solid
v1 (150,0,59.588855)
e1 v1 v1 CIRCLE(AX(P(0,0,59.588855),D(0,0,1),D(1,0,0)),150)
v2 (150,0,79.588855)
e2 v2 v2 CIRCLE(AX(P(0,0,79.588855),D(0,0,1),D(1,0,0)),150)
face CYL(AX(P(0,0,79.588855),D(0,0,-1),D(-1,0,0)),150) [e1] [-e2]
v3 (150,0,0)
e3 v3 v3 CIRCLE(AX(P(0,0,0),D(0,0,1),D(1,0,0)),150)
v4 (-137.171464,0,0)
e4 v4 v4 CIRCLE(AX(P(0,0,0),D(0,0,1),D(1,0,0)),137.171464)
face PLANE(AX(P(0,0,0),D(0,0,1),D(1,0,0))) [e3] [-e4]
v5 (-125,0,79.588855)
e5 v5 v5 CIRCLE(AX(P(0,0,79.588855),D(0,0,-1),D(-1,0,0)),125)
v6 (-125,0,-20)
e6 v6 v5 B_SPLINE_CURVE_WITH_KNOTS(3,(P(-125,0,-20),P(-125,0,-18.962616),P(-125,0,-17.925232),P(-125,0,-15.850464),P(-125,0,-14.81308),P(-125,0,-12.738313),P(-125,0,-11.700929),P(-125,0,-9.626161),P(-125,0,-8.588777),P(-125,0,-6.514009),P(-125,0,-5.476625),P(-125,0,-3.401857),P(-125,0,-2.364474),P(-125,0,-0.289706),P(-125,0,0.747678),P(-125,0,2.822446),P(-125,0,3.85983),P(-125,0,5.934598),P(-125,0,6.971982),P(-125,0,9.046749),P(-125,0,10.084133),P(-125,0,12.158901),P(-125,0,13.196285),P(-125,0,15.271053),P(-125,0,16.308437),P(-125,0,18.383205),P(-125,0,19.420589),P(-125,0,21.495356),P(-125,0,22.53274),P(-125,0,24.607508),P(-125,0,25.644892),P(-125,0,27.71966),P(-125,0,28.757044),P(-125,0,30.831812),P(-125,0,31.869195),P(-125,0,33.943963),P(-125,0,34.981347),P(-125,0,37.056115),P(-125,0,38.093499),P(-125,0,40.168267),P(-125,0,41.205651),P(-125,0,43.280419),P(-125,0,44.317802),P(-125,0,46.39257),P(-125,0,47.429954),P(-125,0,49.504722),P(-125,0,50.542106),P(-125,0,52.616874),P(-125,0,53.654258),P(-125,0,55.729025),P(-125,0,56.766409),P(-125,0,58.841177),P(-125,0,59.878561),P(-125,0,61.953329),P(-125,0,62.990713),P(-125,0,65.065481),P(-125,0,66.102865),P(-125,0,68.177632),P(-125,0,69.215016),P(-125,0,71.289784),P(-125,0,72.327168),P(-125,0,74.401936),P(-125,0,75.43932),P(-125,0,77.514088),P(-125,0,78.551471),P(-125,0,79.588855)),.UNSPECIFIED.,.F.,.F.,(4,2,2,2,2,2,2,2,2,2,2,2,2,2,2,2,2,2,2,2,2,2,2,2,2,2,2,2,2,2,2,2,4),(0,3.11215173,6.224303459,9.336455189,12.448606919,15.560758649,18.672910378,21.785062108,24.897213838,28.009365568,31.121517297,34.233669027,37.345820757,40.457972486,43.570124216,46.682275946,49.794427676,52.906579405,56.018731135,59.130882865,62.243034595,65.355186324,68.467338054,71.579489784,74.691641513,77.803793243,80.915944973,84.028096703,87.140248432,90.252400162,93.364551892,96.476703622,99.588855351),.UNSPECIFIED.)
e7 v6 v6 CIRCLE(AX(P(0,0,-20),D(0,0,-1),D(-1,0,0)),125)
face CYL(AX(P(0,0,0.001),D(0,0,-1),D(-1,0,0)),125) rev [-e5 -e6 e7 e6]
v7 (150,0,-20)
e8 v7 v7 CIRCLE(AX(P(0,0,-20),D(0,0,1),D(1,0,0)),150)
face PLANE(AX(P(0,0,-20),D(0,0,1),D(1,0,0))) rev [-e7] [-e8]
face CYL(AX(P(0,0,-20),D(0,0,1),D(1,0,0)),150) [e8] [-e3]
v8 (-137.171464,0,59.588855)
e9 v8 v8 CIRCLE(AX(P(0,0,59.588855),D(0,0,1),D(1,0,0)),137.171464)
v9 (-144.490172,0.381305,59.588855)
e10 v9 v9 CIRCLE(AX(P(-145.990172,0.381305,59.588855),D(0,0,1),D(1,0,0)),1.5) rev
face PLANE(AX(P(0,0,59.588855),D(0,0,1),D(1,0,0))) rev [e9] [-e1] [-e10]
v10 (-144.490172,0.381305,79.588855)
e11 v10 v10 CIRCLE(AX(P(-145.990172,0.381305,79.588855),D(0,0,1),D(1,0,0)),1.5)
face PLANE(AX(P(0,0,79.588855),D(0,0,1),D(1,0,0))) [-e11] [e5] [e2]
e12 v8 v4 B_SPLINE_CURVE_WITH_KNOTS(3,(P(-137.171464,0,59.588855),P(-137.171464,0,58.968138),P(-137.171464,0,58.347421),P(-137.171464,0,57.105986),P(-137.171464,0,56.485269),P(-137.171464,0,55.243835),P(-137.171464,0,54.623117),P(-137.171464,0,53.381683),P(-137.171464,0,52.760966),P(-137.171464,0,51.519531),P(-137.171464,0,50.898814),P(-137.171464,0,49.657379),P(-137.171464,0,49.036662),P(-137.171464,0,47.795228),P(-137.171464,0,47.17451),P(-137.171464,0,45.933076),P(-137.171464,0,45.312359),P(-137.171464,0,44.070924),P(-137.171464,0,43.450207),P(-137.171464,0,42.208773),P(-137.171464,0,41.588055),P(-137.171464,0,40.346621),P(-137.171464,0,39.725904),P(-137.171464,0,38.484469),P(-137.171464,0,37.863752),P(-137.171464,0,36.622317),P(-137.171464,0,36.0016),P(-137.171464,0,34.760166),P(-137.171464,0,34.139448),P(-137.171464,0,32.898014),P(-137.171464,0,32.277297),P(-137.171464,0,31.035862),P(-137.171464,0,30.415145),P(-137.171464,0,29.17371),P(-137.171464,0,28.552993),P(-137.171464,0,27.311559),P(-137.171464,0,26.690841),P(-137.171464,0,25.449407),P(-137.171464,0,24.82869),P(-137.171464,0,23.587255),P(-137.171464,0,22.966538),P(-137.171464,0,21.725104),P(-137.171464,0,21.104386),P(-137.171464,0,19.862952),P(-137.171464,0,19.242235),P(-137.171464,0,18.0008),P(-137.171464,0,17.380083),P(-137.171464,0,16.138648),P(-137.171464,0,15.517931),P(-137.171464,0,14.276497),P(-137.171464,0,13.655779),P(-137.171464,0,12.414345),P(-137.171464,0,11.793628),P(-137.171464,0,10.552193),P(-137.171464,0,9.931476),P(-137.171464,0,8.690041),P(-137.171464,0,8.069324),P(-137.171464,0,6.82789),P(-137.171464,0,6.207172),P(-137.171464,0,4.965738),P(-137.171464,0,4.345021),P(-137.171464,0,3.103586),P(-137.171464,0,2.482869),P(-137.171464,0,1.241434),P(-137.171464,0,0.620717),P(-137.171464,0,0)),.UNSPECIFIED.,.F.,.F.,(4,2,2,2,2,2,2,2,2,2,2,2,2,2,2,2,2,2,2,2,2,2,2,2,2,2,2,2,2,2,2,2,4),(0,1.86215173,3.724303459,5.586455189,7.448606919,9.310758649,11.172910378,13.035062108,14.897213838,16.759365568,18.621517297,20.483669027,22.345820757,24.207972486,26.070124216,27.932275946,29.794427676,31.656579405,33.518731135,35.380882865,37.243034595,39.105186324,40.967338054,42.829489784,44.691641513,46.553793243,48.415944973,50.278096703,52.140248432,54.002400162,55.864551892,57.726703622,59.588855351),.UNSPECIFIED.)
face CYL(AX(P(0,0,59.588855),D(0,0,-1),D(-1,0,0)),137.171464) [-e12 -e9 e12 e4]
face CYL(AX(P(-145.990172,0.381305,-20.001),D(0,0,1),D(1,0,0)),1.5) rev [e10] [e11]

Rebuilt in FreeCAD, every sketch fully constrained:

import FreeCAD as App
import Part
import Sketcher

V = App.Vector

doc = App.newDocument("Part")
body = doc.addObject("PartDesign::Body", "Body")

sketch1 = body.newObject("Sketcher::SketchObject", "Sketch")
sketch1.AttachmentSupport = (doc.getObject("XY_Plane"), [""])
sketch1.MapMode = "FlatFace"
sketch1.addGeometry(Part.Circle(V(0, 0, 0), V(0, 0, 1), 150), False)
sketch1.addConstraint([
    Sketcher.Constraint("Coincident", 0, 3, -1, 1),
    Sketcher.Constraint("Diameter", 0, 300.0),
])
pad1 = body.newObject("PartDesign::Pad", "Pad")
pad1.Profile = sketch1
pad1.Length = 20
pad1.Reversed = True

sketch2 = body.newObject("Sketcher::SketchObject", "Sketch001")
sketch2.AttachmentSupport = (doc.getObject("XY_Plane"), [""])
sketch2.MapMode = "FlatFace"
sketch2.AttachmentOffset = App.Placement(V(0, 0, -20), App.Rotation())
sketch2.addGeometry(Part.Circle(V(0, 0, 0), V(0, 0, 1), 125), False)
sketch2.addConstraint([
    Sketcher.Constraint("Coincident", 0, 3, -1, 1),
    Sketcher.Constraint("Diameter", 0, 250.0),
])
pocket1 = body.newObject("PartDesign::Pocket", "Pocket")
pocket1.Profile = sketch2
pocket1.Type = "UpToFirst"
pocket1.Reversed = True

sketch3 = body.newObject("Sketcher::SketchObject", "Sketch002")
sketch3.AttachmentSupport = (doc.getObject("XY_Plane"), [""])
sketch3.MapMode = "FlatFace"
sketch3.addGeometry(Part.Circle(V(0, 0, 0), V(0, 0, 1), 137), False)
sketch3.addConstraint([
    Sketcher.Constraint("Coincident", 0, 3, -1, 1),
    Sketcher.Constraint("Diameter", 0, 274.342927),
])
pad2 = body.newObject("PartDesign::Pad", "Pad001")
pad2.Profile = sketch3
pad2.Length = 59.588855

sketch4 = body.newObject("Sketcher::SketchObject", "Sketch003")
sketch4.AttachmentSupport = (doc.getObject("XY_Plane"), [""])
sketch4.MapMode = "FlatFace"
sketch4.AttachmentOffset = App.Placement(V(0, 0, 79.588855), App.Rotation())
sketch4.addGeometry(Part.Circle(V(0, 0, 0), V(0, 0, 1), 150), False)
sketch4.addConstraint([
    Sketcher.Constraint("Coincident", 0, 3, -1, 1),
    Sketcher.Constraint("Diameter", 0, 300.0),
])
pad3 = body.newObject("PartDesign::Pad", "Pad002")
pad3.Profile = sketch4
pad3.Length = 20
pad3.Reversed = True

sketch5 = body.newObject("Sketcher::SketchObject", "Sketch004")
sketch5.AttachmentSupport = (doc.getObject("XY_Plane"), [""])
sketch5.MapMode = "FlatFace"
sketch5.addGeometry(Part.Circle(V(0, 0, 0), V(0, 0, 1), 125), False)
sketch5.addConstraint([
    Sketcher.Constraint("Coincident", 0, 3, -1, 1),
    Sketcher.Constraint("Diameter", 0, 250.0),
])
pocket2 = body.newObject("PartDesign::Pocket", "Pocket001")
pocket2.Profile = sketch5
pocket2.Type = "ThroughAll"
pocket2.Reversed = True

sketch6 = body.newObject("Sketcher::SketchObject", "Sketch005")
sketch6.AttachmentSupport = (doc.getObject("XY_Plane"), [""])
sketch6.MapMode = "FlatFace"
sketch6.AttachmentOffset = App.Placement(V(0, 0, 79.588855), App.Rotation())
sketch6.addGeometry(Part.Circle(V(-146, 0.4, 0), V(0, 0, 1), 1.5), False)
sketch6.addConstraint([
    Sketcher.Constraint("Diameter", 0, 3.0),
    Sketcher.Constraint("DistanceX", 0, 3, -1, 1, 145.990172),
    Sketcher.Constraint("DistanceY", -1, 1, 0, 3, 0.381305),
])
pocket3 = body.newObject("PartDesign::Pocket", "Pocket002")
pocket3.Profile = sketch6
pocket3.Type = "UpToFirst"

doc.recompute()
